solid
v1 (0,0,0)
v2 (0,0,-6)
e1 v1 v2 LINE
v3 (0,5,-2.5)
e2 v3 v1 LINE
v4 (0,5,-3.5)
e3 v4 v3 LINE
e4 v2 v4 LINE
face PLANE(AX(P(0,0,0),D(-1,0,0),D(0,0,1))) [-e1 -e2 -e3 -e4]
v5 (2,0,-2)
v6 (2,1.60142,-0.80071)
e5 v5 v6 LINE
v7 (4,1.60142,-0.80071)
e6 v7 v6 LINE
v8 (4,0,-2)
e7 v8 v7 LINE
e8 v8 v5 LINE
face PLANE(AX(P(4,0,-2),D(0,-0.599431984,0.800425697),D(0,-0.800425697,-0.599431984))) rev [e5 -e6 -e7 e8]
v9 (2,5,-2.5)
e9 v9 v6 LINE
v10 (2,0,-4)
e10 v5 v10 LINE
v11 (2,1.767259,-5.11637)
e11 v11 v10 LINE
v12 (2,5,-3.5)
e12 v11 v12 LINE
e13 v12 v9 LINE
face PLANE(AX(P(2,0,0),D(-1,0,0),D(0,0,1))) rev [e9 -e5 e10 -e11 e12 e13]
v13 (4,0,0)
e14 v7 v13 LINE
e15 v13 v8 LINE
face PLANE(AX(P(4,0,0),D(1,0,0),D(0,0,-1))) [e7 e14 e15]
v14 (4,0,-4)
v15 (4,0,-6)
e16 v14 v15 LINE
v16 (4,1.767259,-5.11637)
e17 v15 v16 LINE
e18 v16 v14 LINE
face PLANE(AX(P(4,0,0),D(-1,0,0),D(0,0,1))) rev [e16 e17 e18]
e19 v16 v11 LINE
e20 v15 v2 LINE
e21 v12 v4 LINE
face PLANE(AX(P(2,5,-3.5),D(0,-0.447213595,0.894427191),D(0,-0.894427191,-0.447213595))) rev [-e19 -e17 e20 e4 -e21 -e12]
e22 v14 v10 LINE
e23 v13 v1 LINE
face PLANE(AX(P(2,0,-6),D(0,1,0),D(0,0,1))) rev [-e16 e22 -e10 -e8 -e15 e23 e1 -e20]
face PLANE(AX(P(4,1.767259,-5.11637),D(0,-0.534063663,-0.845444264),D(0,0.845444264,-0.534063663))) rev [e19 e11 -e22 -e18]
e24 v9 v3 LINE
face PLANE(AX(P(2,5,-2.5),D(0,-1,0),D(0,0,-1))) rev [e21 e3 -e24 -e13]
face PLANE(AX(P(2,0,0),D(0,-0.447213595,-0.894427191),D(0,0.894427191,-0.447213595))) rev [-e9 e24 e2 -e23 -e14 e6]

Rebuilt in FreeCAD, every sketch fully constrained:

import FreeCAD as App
import Part
import Sketcher

V = App.Vector

doc = App.newDocument("Part")
body = doc.addObject("PartDesign::Body", "Body")

# Sketch on YZ plane
sketch1 = doc.addObject("Sketcher::SketchObject", "Sketch")
body.addObject(sketch1)
sketch1.AttachmentSupport = (doc.YZ_Plane, [""])
sketch1.MapMode = "FlatFace"
sketch1.addGeometry([
    Part.LineSegment(V(5, -2.5, 0), V(0, 0, 0)),
    Part.LineSegment(V(0, 0, 0), V(0, -6, 0)),
    Part.LineSegment(V(0, -6, 0), V(5, -3.5, 0)),
    Part.LineSegment(V(5, -3.5, 0), V(5, -2.5, 0)),
], False)
sketch1.addConstraint([
    Sketcher.Constraint("Coincident", 0, 2, 1, 1),
    Sketcher.Constraint("Coincident", 1, 2, 2, 1),
    Sketcher.Constraint("Coincident", 2, 2, 3, 1),
    Sketcher.Constraint("Coincident", 3, 2, 0, 1),
    Sketcher.Constraint("Vertical", 1),
    Sketcher.Constraint("Vertical", 3),
    Sketcher.Constraint("Coincident", 0, 2, -1, 1),
    Sketcher.Constraint("Equal", 0, 2),
    Sketcher.Constraint("DistanceY", 1, 2, 1, 1, 6.0),
    Sketcher.Constraint("DistanceY", 3, 1, 3, 2, 1.0),
    Sketcher.Constraint("DistanceX", -1, 1, 2, 2, 5.0),
])
pad1 = doc.addObject("PartDesign::Pad", "Pad")
body.addObject(pad1)
pad1.Profile = sketch1
pad1.Length = 2

# Sketch on YZ plane
sketch2 = doc.addObject("Sketcher::SketchObject", "Sketch001")
body.addObject(sketch2)
sketch2.AttachmentSupport = (doc.YZ_Plane, [""])
sketch2.MapMode = "FlatFace"
sketch2.AttachmentOffset = App.Placement(V(0, 0, 2), App.Rotation())
sketch2.addGeometry([
    Part.LineSegment(V(0, 0, 0), V(0, -2, 0)),  # 0
    Part.LineSegment(V(0, -2, 0), V(1.6, -0.8, 0)),  # 1
    Part.LineSegment(V(1.6, -0.8, 0), V(0, 0, 0)),  # 2
    Part.LineSegment(V(0, -4, 0), V(0, -6, 0)),  # 3
    Part.LineSegment(V(0, -6, 0), V(1.8, -5.1, 0)),  # 4
    Part.LineSegment(V(1.8, -5.1, 0), V(0, -4, 0)),  # 5
], False)
sketch2.addConstraint([
    Sketcher.Constraint("Coincident", 0, 2, 1, 1),
    Sketcher.Constraint("Coincident", 1, 2, 2, 1),
    Sketcher.Constraint("Coincident", 2, 2, 0, 1),
    Sketcher.Constraint("Coincident", 3, 2, 4, 1),
    Sketcher.Constraint("Coincident", 4, 2, 5, 1),
    Sketcher.Constraint("Coincident", 5, 2, 3, 1),
    Sketcher.Constraint("Vertical", 0),
    Sketcher.Constraint("Vertical", 3),
    Sketcher.Constraint("Coincident", 2, 2, -1, 1),
    Sketcher.Constraint("PointOnObject", 3, 2, -2),
    Sketcher.Constraint("Equal", 0, 3),
    Sketcher.Constraint("DistanceY", 0, 2, 0, 1, 2.0),
    Sketcher.Constraint("DistanceY", 3, 2, -1, 1, 6.0),
    Sketcher.Constraint("Distance", 1, 2.000711),
    Sketcher.Constraint("DistanceX", -1, 1, 1, 2, 1.60142),
    Sketcher.Constraint("DistanceX", -1, 1, 4, 2, 1.767259),
    Sketcher.Constraint("DistanceY", 4, 2, -1, 1, 5.11637),
])
pad2 = doc.addObject("PartDesign::Pad", "Pad001")
body.addObject(pad2)
pad2.Profile = sketch2
pad2.Length = 2

doc.recompute()
